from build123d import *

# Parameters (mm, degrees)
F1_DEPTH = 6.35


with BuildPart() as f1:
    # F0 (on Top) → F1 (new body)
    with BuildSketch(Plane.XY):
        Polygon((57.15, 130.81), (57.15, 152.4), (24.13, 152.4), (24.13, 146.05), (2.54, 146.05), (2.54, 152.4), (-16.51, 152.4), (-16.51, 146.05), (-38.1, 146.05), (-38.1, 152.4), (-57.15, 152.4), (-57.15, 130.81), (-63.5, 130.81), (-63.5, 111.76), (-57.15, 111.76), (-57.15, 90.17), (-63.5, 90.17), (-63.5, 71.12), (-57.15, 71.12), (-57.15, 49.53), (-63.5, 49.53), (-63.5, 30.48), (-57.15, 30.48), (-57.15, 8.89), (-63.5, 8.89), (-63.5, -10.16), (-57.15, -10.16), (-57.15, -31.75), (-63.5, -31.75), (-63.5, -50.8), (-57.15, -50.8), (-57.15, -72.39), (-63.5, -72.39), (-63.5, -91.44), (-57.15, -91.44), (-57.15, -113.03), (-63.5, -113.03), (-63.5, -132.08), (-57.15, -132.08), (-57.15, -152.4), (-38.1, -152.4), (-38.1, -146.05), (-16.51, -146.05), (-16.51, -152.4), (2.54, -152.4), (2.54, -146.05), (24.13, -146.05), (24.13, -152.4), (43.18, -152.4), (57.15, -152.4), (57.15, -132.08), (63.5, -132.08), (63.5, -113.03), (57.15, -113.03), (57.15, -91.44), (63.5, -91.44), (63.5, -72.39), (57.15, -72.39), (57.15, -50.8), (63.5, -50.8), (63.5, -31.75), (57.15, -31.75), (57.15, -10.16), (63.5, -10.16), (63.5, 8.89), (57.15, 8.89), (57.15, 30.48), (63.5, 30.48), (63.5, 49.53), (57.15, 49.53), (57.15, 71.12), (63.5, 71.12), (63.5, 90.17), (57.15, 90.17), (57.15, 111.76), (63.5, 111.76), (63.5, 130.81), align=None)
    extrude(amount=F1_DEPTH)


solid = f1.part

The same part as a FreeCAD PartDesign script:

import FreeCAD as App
import Part
import Sketcher
Q = App.Units.Quantity


def add_polygon(sketch, points):
    """Adds a closed chain of lines whose ends are joined by coincident constraints."""
    first, n = sketch.GeometryCount, len(points)
    for a, b in zip(points, points[1:] + points[:1]):
        sketch.addGeometry(Part.LineSegment(App.Vector(*a, 0), App.Vector(*b, 0)), False)
    for i in range(n):
        sketch.addConstraint(Sketcher.Constraint("Coincident", first + i, 2, first + (i + 1) % n, 1))

doc = App.newDocument("Part")
body = doc.addObject("PartDesign::Body", "Body")

# Sketch on XY plane
sketch1 = body.newObject("Sketcher::SketchObject", "Sketch")
sketch1.AttachmentSupport = (doc.getObject("XY_Plane"), [""])
sketch1.MapMode = "FlatFace"
add_polygon(sketch1, [(57.15, 130.81), (57.15, 152.4), (24.13, 152.4), (24.13, 146.05), (2.54, 146.05), (2.54, 152.4), (-16.51, 152.4), (-16.51, 146.05), (-38.1, 146.05), (-38.1, 152.4), (-57.15, 152.4), (-57.15, 130.81), (-63.5, 130.81), (-63.5, 111.76), (-57.15, 111.76), (-57.15, 90.17), (-63.5, 90.17), (-63.5, 71.12), (-57.15, 71.12), (-57.15, 49.53), (-63.5, 49.53), (-63.5, 30.48), (-57.15, 30.48), (-57.15, 8.89), (-63.5, 8.89), (-63.5, -10.16), (-57.15, -10.16), (-57.15, -31.75), (-63.5, -31.75), (-63.5, -50.8), (-57.15, -50.8), (-57.15, -72.39), (-63.5, -72.39), (-63.5, -91.44), (-57.15, -91.44), (-57.15, -113.03), (-63.5, -113.03), (-63.5, -132.08), (-57.15, -132.08), (-57.15, -152.4), (-38.1, -152.4), (-38.1, -146.05), (-16.51, -146.05), (-16.51, -152.4), (2.54, -152.4), (2.54, -146.05), (24.13, -146.05), (24.13, -152.4), (57.15, -152.4), (57.15, -132.08), (63.5, -132.08), (63.5, -113.03), (57.15, -113.03), (57.15, -91.44), (63.5, -91.44), (63.5, -72.39), (57.15, -72.39), (57.15, -50.8), (63.5, -50.8), (63.5, -31.75), (57.15, -31.75), (57.15, -10.16), (63.5, -10.16), (63.5, 8.89), (57.15, 8.89), (57.15, 30.48), (63.5, 30.48), (63.5, 49.53), (57.15, 49.53), (57.15, 71.12), (63.5, 71.12), (63.5, 90.17), (57.15, 90.17), (57.15, 111.76), (63.5, 111.76), (63.5, 130.81)])  # lines 0-75
sketch1.addConstraint([
    Sketcher.Constraint("Vertical", 0),
    Sketcher.Constraint("Horizontal", 1),
    Sketcher.Constraint("Vertical", 2),
    Sketcher.Constraint("Horizontal", 3),
    Sketcher.Constraint("Vertical", 4),
    Sketcher.Constraint("Horizontal", 5),
    Sketcher.Constraint("Vertical", 6),
    Sketcher.Constraint("Horizontal", 7),
    Sketcher.Constraint("Vertical", 8),
    Sketcher.Constraint("Horizontal", 9),
    Sketcher.Constraint("Vertical", 10),
    Sketcher.Constraint("Horizontal", 11),
    Sketcher.Constraint("Vertical", 12),
    Sketcher.Constraint("Horizontal", 13),
    Sketcher.Constraint("Vertical", 14),
    Sketcher.Constraint("Horizontal", 15),
    Sketcher.Constraint("Vertical", 16),
    Sketcher.Constraint("Horizontal", 17),
    Sketcher.Constraint("Vertical", 18),
    Sketcher.Constraint("Horizontal", 19),
    Sketcher.Constraint("Vertical", 20),
    Sketcher.Constraint("Horizontal", 21),
    Sketcher.Constraint("Vertical", 22),
    Sketcher.Constraint("Horizontal", 23),
    Sketcher.Constraint("Vertical", 24),
    Sketcher.Constraint("Horizontal", 25),
    Sketcher.Constraint("Vertical", 26),
    Sketcher.Constraint("Horizontal", 27),
    Sketcher.Constraint("Vertical", 28),
    Sketcher.Constraint("Horizontal", 29),
    Sketcher.Constraint("Vertical", 30),
    Sketcher.Constraint("Horizontal", 31),
    Sketcher.Constraint("Vertical", 32),
    Sketcher.Constraint("Horizontal", 33),
    Sketcher.Constraint("Vertical", 34),
    Sketcher.Constraint("Horizontal", 35),
    Sketcher.Constraint("Vertical", 36),
    Sketcher.Constraint("Horizontal", 37),
    Sketcher.Constraint("Vertical", 38),
    Sketcher.Constraint("Horizontal", 39),
    Sketcher.Constraint("Vertical", 40),
    Sketcher.Constraint("Horizontal", 41),
    Sketcher.Constraint("Vertical", 42),
    Sketcher.Constraint("Horizontal", 43),
    Sketcher.Constraint("Vertical", 44),
    Sketcher.Constraint("Horizontal", 45),
    Sketcher.Constraint("Vertical", 46),
    Sketcher.Constraint("Horizontal", 47),
    Sketcher.Constraint("Vertical", 48),
    Sketcher.Constraint("Horizontal", 49),
    Sketcher.Constraint("Vertical", 50),
    Sketcher.Constraint("Horizontal", 51),
    Sketcher.Constraint("Vertical", 52),
    Sketcher.Constraint("Horizontal", 53),
    Sketcher.Constraint("Vertical", 54),
    Sketcher.Constraint("Horizontal", 55),
    Sketcher.Constraint("Vertical", 56),
    Sketcher.Constraint("Horizontal", 57),
    Sketcher.Constraint("Vertical", 58),
    Sketcher.Constraint("Horizontal", 59),
    Sketcher.Constraint("Vertical", 60),
    Sketcher.Constraint("Horizontal", 61),
    Sketcher.Constraint("Vertical", 62),
    Sketcher.Constraint("Horizontal", 63),
    Sketcher.Constraint("Vertical", 64),
    Sketcher.Constraint("Horizontal", 65),
    Sketcher.Constraint("Vertical", 66),
    Sketcher.Constraint("Horizontal", 67),
    Sketcher.Constraint("Vertical", 68),
    Sketcher.Constraint("Horizontal", 69),
    Sketcher.Constraint("Vertical", 70),
    Sketcher.Constraint("Horizontal", 71),
    Sketcher.Constraint("Vertical", 72),
    Sketcher.Constraint("Horizontal", 73),
    Sketcher.Constraint("Vertical", 74),
    Sketcher.Constraint("Horizontal", 75),
    Sketcher.Constraint("Symmetric", 0, 2, 38, 2, -1, 1),
    Sketcher.Constraint("Symmetric", 9, 2, 47, 2, -1, 1),
    Sketcher.Constraint("Symmetric", 0, 2, 9, 2, -2),
    Sketcher.Constraint("Symmetric", 36, 2, 49, 2, -2),
    Sketcher.Constraint("Symmetric", 34, 2, 51, 2, -2),
    Sketcher.Constraint("Symmetric", 32, 2, 53, 2, -2),
    Sketcher.Constraint("Symmetric", 30, 2, 55, 2, -2),
    Sketcher.Constraint("Symmetric", 28, 2, 57, 2, -2),
    Sketcher.Constraint("Symmetric", 26, 2, 59, 2, -2),
    Sketcher.Constraint("Symmetric", 24, 2, 61, 2, -2),
    Sketcher.Constraint("Symmetric", 22, 2, 63, 2, -2),
    Sketcher.Constraint("Symmetric", 20, 2, 65, 2, -2),
    Sketcher.Constraint("Symmetric", 18, 2, 67, 2, -2),
    Sketcher.Constraint("Symmetric", 16, 2, 69, 2, -2),
    Sketcher.Constraint("Symmetric", 14, 2, 71, 2, -2),
    Sketcher.Constraint("Symmetric", 12, 2, 73, 2, -2),
    Sketcher.Constraint("Symmetric", 7, 2, 40, 2, -1),
    Sketcher.Constraint("Symmetric", 5, 2, 42, 2, -1),
    Sketcher.Constraint("Symmetric", 3, 2, 44, 2, -1),
    Sketcher.Constraint("Horizontal", 1, 2, 4, 2),
    Sketcher.Constraint("Horizontal", 3, 2, 6, 2),
    Sketcher.Constraint("Horizontal", 11, 2, 74, 2),
    Sketcher.Constraint("Vertical", 10, 2, 13, 2),
    Sketcher.Constraint("Vertical", 12, 2, 15, 2),
    Sketcher.Constraint("Vertical", 14, 2, 17, 2),
    Sketcher.Constraint("Vertical", 16, 2, 19, 2),
    Sketcher.Constraint("Vertical", 18, 2, 21, 2),
    Sketcher.Constraint("Vertical", 20, 2, 23, 2),
    Sketcher.Constraint("Vertical", 22, 2, 25, 2),
    Sketcher.Constraint("Vertical", 24, 2, 27, 2),
    Sketcher.Constraint("Vertical", 26, 2, 29, 2),
    Sketcher.Constraint("Vertical", 28, 2, 31, 2),
    Sketcher.Constraint("Vertical", 30, 2, 33, 2),
    Sketcher.Constraint("Vertical", 32, 2, 35, 2),
    Sketcher.Constraint("Vertical", 2, 2, 45, 2),
    Sketcher.Constraint("Equal", 3, 7),
    Sketcher.Constraint("Equal", 5, 9),
    Sketcher.Constraint("Equal", 45, 0),
    Sketcher.Constraint("Equal", 75, 2),
    Sketcher.Constraint("Equal", 43, 12),
    Sketcher.Constraint("Equal", 10, 14),
    Sketcher.Constraint("Equal", 12, 16),
    Sketcher.Constraint("Equal", 14, 18),
    Sketcher.Constraint("Equal", 16, 20),
    Sketcher.Constraint("Equal", 18, 22),
    Sketcher.Constraint("Equal", 20, 24),
    Sketcher.Constraint("Equal", 22, 26),
    Sketcher.Constraint("Equal", 24, 28),
    Sketcher.Constraint("Equal", 26, 30),
    Sketcher.Constraint("Equal", 28, 32),
    Sketcher.Constraint("Equal", 30, 34),
    Sketcher.Constraint("Equal", 32, 36),
    Sketcher.Constraint("DistanceX", 1, 2, 1, 1, Q("1.3 in")),
    Sketcher.Constraint("DistanceY", 38, 2, 38, 1, Q("0.8 in")),
    Sketcher.Constraint("DistanceY", -1, 1, 0, 2, Q("6 in")),
    Sketcher.Constraint("DistanceX", 3, 2, 3, 1, Q("0.85 in")),
    Sketcher.Constraint("DistanceX", 11, 2, 11, 1, Q("0.25 in")),
])
pad1 = body.newObject("PartDesign::Pad", "Pad")
pad1.Profile = sketch1
pad1.Length = Q("0.25 in")

doc.recompute()
